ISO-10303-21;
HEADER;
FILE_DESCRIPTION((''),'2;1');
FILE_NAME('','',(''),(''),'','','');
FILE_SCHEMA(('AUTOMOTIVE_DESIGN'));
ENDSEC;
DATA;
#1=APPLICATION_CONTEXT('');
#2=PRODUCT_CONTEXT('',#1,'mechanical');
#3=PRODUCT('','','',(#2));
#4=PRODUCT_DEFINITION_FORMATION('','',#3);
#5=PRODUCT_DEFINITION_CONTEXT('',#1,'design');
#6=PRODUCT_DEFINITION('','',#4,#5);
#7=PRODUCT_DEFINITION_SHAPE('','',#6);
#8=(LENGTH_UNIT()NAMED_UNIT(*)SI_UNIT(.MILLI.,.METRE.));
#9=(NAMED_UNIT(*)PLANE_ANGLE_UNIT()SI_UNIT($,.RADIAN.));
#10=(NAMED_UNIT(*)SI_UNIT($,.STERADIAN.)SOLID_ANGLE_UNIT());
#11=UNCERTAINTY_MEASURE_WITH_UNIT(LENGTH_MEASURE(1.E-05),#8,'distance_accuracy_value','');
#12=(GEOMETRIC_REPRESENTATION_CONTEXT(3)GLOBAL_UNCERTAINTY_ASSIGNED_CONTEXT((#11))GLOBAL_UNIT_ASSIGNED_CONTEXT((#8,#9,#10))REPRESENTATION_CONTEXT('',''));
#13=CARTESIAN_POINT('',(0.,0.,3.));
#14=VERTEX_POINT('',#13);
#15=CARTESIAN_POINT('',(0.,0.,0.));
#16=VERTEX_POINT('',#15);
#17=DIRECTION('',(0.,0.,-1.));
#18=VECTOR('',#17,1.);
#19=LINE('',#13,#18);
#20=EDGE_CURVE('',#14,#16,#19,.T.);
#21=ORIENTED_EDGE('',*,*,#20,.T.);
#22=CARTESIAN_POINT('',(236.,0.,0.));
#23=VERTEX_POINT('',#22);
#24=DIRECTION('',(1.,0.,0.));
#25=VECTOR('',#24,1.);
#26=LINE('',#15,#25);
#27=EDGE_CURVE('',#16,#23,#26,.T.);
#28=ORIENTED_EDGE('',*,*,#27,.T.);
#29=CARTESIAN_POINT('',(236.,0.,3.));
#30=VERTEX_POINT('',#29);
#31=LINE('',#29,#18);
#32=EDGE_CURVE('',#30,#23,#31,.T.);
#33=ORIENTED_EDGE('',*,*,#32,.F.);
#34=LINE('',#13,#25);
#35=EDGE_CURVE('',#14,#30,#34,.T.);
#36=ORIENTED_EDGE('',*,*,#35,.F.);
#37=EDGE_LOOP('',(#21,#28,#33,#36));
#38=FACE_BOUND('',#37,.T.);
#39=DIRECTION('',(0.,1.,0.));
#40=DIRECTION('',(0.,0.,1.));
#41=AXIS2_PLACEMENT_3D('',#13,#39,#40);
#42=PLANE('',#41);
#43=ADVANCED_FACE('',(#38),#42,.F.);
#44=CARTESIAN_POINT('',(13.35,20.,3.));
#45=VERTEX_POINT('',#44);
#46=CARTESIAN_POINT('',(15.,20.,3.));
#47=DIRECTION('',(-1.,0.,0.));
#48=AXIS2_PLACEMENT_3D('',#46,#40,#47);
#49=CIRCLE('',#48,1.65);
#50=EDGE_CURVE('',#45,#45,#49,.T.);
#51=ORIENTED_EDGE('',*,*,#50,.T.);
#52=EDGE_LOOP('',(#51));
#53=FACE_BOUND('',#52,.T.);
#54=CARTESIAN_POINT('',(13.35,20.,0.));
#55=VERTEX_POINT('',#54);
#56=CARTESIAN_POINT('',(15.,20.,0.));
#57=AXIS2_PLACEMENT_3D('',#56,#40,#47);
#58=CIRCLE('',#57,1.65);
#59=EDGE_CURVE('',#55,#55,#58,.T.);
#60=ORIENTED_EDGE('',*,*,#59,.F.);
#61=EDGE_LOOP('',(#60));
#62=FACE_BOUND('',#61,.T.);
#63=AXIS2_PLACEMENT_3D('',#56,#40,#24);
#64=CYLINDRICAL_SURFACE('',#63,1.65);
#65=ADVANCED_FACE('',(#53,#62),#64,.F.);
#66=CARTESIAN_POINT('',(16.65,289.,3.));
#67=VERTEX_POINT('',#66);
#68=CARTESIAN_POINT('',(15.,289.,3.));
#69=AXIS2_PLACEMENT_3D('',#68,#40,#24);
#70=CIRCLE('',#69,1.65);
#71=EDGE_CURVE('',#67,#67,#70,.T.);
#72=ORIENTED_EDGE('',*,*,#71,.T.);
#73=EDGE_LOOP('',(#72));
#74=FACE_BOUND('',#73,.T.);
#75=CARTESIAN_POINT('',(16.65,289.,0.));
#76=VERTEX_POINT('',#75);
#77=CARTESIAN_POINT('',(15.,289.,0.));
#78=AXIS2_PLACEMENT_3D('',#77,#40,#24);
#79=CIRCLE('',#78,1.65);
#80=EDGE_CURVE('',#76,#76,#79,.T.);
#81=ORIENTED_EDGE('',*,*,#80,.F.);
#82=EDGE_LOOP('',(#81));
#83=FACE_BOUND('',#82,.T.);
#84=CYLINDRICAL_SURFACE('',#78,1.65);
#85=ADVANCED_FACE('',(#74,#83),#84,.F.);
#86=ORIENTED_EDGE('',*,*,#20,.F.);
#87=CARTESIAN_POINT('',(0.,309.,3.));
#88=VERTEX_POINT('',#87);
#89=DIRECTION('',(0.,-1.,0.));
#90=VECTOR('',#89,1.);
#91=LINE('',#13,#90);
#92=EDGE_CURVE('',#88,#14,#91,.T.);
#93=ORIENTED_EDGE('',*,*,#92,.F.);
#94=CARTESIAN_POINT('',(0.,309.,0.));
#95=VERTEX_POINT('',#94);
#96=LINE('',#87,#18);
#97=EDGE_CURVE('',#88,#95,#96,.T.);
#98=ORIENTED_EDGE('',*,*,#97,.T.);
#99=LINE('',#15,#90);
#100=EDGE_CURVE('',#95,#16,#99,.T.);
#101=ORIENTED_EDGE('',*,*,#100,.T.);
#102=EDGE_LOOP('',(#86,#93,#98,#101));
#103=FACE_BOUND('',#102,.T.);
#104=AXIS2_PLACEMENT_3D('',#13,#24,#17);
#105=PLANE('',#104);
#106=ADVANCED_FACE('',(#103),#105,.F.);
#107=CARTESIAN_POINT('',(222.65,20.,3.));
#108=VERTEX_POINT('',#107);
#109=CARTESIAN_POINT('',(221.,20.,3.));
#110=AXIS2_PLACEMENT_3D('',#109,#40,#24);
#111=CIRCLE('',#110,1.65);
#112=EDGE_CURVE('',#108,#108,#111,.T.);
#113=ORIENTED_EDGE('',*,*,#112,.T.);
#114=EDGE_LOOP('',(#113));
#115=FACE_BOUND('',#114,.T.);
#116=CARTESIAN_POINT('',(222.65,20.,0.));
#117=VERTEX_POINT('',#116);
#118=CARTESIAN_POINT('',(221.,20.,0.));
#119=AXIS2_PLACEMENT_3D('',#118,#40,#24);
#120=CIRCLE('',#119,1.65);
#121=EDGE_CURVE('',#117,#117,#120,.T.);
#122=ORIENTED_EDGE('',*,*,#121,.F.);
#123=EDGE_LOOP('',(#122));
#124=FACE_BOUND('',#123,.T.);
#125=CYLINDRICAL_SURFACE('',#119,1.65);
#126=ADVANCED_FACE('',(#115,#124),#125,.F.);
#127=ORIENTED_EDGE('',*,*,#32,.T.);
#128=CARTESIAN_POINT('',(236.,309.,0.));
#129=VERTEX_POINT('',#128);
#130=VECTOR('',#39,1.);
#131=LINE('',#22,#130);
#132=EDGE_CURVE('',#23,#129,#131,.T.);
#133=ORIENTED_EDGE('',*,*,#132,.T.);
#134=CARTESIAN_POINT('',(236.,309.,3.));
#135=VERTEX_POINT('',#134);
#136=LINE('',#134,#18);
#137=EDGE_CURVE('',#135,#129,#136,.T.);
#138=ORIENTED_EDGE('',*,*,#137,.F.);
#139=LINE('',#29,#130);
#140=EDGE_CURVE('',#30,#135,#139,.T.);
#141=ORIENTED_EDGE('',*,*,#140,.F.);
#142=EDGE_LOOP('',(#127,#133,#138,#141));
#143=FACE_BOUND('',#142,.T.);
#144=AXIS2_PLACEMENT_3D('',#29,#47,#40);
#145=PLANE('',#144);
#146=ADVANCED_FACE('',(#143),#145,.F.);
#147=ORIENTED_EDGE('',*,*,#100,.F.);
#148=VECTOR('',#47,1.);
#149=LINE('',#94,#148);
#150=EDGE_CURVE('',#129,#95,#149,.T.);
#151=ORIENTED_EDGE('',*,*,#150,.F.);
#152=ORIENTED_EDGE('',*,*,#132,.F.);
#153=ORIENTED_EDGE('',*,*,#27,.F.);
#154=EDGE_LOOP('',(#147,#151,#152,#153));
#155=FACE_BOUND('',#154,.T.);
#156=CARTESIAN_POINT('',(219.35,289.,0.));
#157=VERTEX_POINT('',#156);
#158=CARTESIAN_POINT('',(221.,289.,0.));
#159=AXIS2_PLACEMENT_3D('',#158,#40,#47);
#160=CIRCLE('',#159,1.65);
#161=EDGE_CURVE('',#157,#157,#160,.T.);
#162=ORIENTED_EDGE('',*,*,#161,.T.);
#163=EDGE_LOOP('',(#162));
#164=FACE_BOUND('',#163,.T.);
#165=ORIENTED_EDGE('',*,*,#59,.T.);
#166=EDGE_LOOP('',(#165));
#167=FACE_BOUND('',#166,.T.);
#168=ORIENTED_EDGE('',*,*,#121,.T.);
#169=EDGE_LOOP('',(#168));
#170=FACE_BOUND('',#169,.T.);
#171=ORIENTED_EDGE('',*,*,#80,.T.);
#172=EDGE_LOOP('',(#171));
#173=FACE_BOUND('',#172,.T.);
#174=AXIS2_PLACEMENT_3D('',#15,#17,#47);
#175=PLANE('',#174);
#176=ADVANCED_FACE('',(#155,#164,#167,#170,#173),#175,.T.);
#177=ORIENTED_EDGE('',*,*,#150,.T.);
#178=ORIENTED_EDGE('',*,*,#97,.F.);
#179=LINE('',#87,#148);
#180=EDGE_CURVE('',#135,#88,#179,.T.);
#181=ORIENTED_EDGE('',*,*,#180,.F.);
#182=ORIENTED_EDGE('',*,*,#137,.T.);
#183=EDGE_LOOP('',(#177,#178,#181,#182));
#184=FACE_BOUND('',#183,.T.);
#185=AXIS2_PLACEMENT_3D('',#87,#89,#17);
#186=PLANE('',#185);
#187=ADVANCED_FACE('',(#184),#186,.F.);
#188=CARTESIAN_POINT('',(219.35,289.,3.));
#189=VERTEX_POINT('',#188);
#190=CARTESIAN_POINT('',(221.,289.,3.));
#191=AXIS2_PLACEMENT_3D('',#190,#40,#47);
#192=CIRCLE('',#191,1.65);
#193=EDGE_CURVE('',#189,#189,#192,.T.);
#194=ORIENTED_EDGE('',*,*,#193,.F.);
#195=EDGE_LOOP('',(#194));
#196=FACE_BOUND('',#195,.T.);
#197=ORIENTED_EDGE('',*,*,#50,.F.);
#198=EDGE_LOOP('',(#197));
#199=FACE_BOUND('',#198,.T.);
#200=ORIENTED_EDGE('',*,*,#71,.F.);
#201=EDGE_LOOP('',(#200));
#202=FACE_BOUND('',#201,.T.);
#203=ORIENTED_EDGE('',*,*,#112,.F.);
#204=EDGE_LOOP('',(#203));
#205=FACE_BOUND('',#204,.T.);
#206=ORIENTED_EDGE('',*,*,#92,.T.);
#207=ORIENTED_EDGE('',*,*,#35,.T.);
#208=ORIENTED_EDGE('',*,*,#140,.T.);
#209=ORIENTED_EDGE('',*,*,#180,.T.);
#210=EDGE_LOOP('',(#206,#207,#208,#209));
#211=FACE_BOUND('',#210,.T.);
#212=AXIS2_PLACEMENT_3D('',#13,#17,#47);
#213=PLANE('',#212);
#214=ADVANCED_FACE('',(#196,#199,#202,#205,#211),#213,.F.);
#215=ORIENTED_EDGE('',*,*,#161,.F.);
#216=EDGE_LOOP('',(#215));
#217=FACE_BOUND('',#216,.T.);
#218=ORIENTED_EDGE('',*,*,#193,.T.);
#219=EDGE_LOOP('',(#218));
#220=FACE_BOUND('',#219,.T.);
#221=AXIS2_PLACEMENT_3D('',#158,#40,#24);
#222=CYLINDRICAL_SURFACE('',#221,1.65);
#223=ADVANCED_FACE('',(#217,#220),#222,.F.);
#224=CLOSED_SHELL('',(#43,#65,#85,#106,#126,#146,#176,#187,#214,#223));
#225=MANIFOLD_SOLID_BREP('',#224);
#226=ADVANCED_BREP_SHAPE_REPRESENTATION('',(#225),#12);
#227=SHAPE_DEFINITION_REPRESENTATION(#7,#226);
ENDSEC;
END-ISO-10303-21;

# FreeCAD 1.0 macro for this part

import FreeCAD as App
import Part
import Sketcher
from FreeCAD import Vector
Q = App.Units.Quantity


def add_polygon(sketch, points):
    """Adds a closed chain of lines whose ends are joined by coincident constraints."""
    first, n = sketch.GeometryCount, len(points)
    for a, b in zip(points, points[1:] + points[:1]):
        sketch.addGeometry(Part.LineSegment(App.Vector(*a, 0), App.Vector(*b, 0)), False)
    for i in range(n):
        sketch.addConstraint(Sketcher.Constraint("Coincident", first + i, 2, first + (i + 1) % n, 1))

doc = App.newDocument("Part")
body = doc.addObject("PartDesign::Body", "Body")

# Sketch on XY plane
sketch1 = doc.addObject("Sketcher::SketchObject", "Sketch")
body.addObject(sketch1)
sketch1.AttachmentSupport = (doc.XY_Plane, [""])
sketch1.MapMode = "FlatFace"
add_polygon(sketch1, [(0, 309), (0, 0), (236, 0), (236, 309)])  # lines 0-3
sketch1.addConstraint([
    Sketcher.Constraint("Vertical", 0),
    Sketcher.Constraint("Horizontal", 1),
    Sketcher.Constraint("Vertical", 2),
    Sketcher.Constraint("Horizontal", 3),
    Sketcher.Constraint("Coincident", 0, 2, -1, 1),
    Sketcher.Constraint("DistanceX", 1, 1, 1, 2, Q("236 mm")),
    Sketcher.Constraint("DistanceY", 0, 2, 0, 1, Q("309 mm")),
])
pad1 = doc.addObject("PartDesign::Pad", "Pad")
body.addObject(pad1)
pad1.Profile = sketch1
pad1.Length = 3

# Sketch on XY plane
sketch2 = doc.addObject("Sketcher::SketchObject", "Sketch001")
body.addObject(sketch2)
sketch2.AttachmentSupport = (doc.XY_Plane, [""])
sketch2.MapMode = "FlatFace"
sketch2.AttachmentOffset = App.Placement(Vector(0, 0, 3), App.Rotation())
sketch2.addGeometry([
    Part.Circle(Vector(15, 289, 0), Vector(0, 0, 1), 1.6),
    Part.Circle(Vector(15, 20, 0), Vector(0, 0, 1), 1.6),
    Part.Circle(Vector(221, 20, 0), Vector(0, 0, 1), 1.6),
    Part.Circle(Vector(221, 289, 0), Vector(0, 0, 1), 1.6),
], False)
sketch2.addConstraint([
    Sketcher.Constraint("Equal", 0, 1),
    Sketcher.Constraint("Equal", 1, 2),
    Sketcher.Constraint("Equal", 2, 3),
    Sketcher.Constraint("Horizontal", 1, 3, 2, 3),
    Sketcher.Constraint("Horizontal", 0, 3, 3, 3),
    Sketcher.Constraint("Vertical", 0, 3, 1, 3),
    Sketcher.Constraint("Vertical", 2, 3, 3, 3),
    Sketcher.Constraint("Diameter", 0, Q("3.3 mm")),
    Sketcher.Constraint("DistanceX", -1, 1, 0, 3, Q("15 mm")),
    Sketcher.Constraint("DistanceY", -1, 1, 0, 3, Q("289 mm")),
    Sketcher.Constraint("DistanceY", -1, 1, 1, 3, Q("20 mm")),
    Sketcher.Constraint("DistanceX", -1, 1, 2, 3, Q("221 mm")),
])
pocket1 = doc.addObject("PartDesign::Pocket", "Pocket")
body.addObject(pocket1)
pocket1.Profile = sketch2
pocket1.Type = "ThroughAll"

doc.recompute()
